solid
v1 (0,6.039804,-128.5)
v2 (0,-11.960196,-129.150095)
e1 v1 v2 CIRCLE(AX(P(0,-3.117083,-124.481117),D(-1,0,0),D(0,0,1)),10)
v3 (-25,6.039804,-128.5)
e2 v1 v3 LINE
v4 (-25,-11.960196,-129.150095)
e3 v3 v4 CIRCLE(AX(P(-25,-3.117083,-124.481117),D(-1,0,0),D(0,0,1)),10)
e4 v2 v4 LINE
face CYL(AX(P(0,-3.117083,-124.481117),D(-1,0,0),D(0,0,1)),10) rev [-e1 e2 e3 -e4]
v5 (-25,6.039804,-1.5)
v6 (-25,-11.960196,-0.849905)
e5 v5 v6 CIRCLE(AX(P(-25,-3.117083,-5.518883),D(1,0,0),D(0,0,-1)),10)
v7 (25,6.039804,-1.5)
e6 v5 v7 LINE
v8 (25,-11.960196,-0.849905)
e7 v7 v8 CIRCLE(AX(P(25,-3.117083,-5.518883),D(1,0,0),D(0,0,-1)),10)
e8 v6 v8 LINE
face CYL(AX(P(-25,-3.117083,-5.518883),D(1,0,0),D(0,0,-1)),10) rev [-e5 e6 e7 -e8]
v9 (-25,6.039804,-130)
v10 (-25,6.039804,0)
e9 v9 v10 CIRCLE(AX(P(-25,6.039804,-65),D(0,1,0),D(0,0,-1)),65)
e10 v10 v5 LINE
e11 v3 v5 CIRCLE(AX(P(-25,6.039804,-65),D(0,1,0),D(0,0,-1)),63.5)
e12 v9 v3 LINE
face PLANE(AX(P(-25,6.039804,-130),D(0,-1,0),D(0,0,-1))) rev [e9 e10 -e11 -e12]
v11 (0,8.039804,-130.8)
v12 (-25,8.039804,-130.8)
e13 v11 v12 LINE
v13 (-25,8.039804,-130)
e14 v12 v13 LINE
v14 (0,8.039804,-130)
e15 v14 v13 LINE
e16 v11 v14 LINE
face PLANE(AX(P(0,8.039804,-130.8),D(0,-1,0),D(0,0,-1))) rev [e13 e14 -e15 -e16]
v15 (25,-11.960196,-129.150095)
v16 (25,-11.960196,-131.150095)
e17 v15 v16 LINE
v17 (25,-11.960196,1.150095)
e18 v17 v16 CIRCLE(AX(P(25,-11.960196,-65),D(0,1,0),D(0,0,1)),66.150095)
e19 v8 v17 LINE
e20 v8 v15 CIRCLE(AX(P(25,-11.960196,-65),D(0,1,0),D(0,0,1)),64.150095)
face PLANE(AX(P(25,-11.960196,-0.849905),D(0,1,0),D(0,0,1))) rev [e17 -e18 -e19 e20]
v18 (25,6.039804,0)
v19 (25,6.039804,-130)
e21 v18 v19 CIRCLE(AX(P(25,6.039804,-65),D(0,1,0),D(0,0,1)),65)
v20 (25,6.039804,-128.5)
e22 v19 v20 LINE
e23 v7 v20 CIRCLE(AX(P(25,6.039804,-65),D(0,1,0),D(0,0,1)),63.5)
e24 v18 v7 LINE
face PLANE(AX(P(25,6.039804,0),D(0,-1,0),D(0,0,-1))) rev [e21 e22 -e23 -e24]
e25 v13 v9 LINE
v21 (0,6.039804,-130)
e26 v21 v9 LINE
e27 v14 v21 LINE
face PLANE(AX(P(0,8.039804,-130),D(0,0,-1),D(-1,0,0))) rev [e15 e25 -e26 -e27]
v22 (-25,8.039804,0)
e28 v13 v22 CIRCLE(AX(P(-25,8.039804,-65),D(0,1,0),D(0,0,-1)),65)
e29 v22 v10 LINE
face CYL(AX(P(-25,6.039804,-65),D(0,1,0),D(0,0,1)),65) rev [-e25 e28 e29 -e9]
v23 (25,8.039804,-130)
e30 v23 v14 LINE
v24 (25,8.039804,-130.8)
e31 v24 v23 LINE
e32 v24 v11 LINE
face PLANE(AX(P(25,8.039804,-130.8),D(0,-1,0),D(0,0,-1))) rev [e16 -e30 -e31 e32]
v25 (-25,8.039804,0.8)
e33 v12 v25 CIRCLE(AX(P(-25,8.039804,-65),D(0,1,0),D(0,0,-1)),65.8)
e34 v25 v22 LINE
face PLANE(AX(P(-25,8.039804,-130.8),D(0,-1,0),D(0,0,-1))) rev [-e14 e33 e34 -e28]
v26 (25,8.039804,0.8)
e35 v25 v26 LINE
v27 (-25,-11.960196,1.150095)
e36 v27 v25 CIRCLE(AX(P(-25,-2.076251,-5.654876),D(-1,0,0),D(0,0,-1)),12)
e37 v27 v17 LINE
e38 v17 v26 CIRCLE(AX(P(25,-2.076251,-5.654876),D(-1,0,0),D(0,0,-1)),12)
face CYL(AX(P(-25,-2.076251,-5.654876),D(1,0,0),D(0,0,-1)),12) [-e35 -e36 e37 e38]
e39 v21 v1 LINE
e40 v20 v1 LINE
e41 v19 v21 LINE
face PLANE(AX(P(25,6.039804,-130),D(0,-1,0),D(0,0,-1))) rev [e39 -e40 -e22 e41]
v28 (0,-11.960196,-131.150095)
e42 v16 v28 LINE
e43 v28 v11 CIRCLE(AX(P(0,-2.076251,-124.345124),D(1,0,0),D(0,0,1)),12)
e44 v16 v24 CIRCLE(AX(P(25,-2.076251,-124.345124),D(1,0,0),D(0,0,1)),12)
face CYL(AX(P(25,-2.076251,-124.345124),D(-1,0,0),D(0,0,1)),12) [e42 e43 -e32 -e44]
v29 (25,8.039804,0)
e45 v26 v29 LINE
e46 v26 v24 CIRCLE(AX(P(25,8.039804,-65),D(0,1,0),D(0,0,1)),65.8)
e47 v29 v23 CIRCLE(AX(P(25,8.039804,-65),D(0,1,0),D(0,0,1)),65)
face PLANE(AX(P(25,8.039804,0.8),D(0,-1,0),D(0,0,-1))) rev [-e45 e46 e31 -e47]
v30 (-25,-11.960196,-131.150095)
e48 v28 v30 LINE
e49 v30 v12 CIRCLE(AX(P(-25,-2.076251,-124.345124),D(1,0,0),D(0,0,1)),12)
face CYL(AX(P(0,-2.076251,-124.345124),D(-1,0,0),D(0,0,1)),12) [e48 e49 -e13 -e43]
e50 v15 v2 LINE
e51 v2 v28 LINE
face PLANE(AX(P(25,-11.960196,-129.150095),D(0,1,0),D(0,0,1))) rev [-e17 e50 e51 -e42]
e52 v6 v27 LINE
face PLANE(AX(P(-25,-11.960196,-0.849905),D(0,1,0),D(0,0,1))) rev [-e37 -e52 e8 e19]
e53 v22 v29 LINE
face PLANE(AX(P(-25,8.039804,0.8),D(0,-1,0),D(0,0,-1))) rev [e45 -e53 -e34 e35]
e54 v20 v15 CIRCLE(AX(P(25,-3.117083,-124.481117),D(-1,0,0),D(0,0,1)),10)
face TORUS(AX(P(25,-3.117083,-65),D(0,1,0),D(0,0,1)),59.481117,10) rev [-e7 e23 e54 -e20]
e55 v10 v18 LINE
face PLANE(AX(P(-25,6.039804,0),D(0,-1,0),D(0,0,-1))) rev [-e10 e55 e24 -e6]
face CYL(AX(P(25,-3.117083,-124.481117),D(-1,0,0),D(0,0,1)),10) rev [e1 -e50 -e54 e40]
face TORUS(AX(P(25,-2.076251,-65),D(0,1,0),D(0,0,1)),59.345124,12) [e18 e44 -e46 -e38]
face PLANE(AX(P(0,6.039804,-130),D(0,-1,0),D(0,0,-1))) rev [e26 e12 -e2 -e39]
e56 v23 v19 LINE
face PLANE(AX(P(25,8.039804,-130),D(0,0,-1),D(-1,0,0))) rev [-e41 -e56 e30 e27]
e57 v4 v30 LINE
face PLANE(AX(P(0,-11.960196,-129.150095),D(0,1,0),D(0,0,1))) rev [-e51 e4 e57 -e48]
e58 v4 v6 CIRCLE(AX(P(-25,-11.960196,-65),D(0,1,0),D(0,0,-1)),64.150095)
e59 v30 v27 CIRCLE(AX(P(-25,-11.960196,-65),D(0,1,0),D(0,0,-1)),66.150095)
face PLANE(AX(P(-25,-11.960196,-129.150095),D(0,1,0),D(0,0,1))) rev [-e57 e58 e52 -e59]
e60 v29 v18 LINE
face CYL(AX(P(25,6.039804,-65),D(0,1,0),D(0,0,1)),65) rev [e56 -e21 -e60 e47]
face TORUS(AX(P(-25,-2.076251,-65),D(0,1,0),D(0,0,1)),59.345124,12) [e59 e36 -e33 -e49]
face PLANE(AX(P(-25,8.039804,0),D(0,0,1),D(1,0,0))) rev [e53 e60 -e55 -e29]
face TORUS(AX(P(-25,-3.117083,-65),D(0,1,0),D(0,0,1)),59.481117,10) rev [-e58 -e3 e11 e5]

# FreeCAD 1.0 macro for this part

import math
import FreeCAD as App
import Part
import Sketcher

V = App.Vector
Q = App.Units.Quantity

doc = App.newDocument("Part")
body = doc.addObject("PartDesign::Body", "Body")

# Sketch on YZ plane
sketch1 = body.newObject("Sketcher::SketchObject", "Sketch")
sketch1.AttachmentSupport = (doc.getObject("YZ_Plane"), [""])
sketch1.MapMode = "FlatFace"
sketch1.addGeometry(Part.LineSegment(V(8, -130.8, 0), V(8, -130, 0)), False)
sketch1.addGeometry(Part.LineSegment(V(8, -130, 0), V(6, -130, 0)), False)
sketch1.addGeometry(Part.LineSegment(V(6, -130, 0), V(6, -128.5, 0)), False)
sketch1.addGeometry(Part.ArcOfCircle(Part.Circle(V(-3.1, -124.5, 0), V(0, 0, 1), 10), math.radians(-152), math.radians(-24)), False)
sketch1.addGeometry(Part.LineSegment(V(-12, -129.2, 0), V(-12, -131.2, 0)), False)
sketch1.addGeometry(Part.ArcOfCircle(Part.Circle(V(-2.1, -124.3, 0), V(0, 0, 1), 12), math.radians(-145), math.radians(-33)), False)
sketch1.addConstraint(Sketcher.Constraint("Coincident", 0, 2, 1, 1))
sketch1.addConstraint(Sketcher.Constraint("Coincident", 1, 2, 2, 1))
sketch1.addConstraint(Sketcher.Constraint("Coincident", 2, 2, 3, 2))
sketch1.addConstraint(Sketcher.Constraint("Coincident", 3, 1, 4, 1))
sketch1.addConstraint(Sketcher.Constraint("Coincident", 4, 2, 5, 1))
sketch1.addConstraint(Sketcher.Constraint("Coincident", 5, 2, 0, 1))
sketch1.addConstraint(Sketcher.Constraint("Vertical", 0))
sketch1.addConstraint(Sketcher.Constraint("Horizontal", 1))
sketch1.addConstraint(Sketcher.Constraint("Vertical", 2))
sketch1.addConstraint(Sketcher.Constraint("Vertical", 4))
sketch1.addConstraint(Sketcher.Constraint("Equal", 1, 4))
sketch1.addConstraint(Sketcher.Constraint("Radius", 3, Q("10 mm")))
sketch1.addConstraint(Sketcher.Constraint("Radius", 5, Q("12 mm")))
sketch1.addConstraint(Sketcher.Constraint("DistanceX", 1, 2, 1, 1, Q("2 mm")))
sketch1.addConstraint(Sketcher.Constraint("DistanceY", 0, 1, 0, 2, Q("0.8 mm")))
sketch1.addConstraint(Sketcher.Constraint("DistanceY", 2, 1, 2, 2, Q("1.5 mm")))
sketch1.addConstraint(Sketcher.Constraint("DistanceY", 0, 2, -1, 1, Q("130 mm")))
sketch1.addConstraint(Sketcher.Constraint("DistanceX", 3, 1, 2, 2, Q("18 mm")))
sketch1.addConstraint(Sketcher.Constraint("DistanceX", 5, 3, -1, 1, Q("2.076251 mm")))
sketch1.addConstraint(Sketcher.Constraint("DistanceX", 3, 3, 5, 3, Q("1.040832 mm")))

# Sketch on XZ plane
sketch2 = body.newObject("Sketcher::SketchObject", "Sketch001")
sketch2.AttachmentSupport = (doc.getObject("XZ_Plane"), [""])
sketch2.MapMode = "FlatFace"
sketch2.AttachmentOffset = App.Placement(V(0, 0, -6.039804), App.Rotation())
sketch2.addGeometry(Part.LineSegment(V(-25, -130, 0), V(25, -130, 0)), False)
sketch2.addGeometry(Part.ArcOfCircle(Part.Circle(V(25, -65, 0), V(0, 0, 1), 65), math.radians(-90), math.radians(90)), False)
sketch2.addGeometry(Part.LineSegment(V(25, 0, 0), V(-25, 0, 0)), False)
sketch2.addGeometry(Part.ArcOfCircle(Part.Circle(V(-25, -65, 0), V(0, 0, 1), 65), math.radians(90), math.radians(270)), False)
sketch2.addConstraint(Sketcher.Constraint("Tangent", 0, 2, 1, 1))
sketch2.addConstraint(Sketcher.Constraint("Tangent", 1, 2, 2, 1))
sketch2.addConstraint(Sketcher.Constraint("Tangent", 2, 2, 3, 1))
sketch2.addConstraint(Sketcher.Constraint("Tangent", 3, 2, 0, 1))
sketch2.addConstraint(Sketcher.Constraint("Horizontal", 0))
sketch2.addConstraint(Sketcher.Constraint("Horizontal", 2))
sketch2.addConstraint(Sketcher.Constraint("Symmetric", 1, 2, 2, 2, -1, 1))
sketch2.addConstraint(Sketcher.Constraint("Radius", 1, Q("65 mm")))
sketch2.addConstraint(Sketcher.Constraint("DistanceX", 0, 1, 0, 2, Q("50 mm")))
doc.recompute()

additivepipe = body.newObject("PartDesign::AdditivePipe", "AdditivePipe")
additivepipe.Profile = sketch1
additivepipe.Spine = (sketch2, ["Edge1", "Edge2", "Edge3", "Edge4"])

doc.recompute()
